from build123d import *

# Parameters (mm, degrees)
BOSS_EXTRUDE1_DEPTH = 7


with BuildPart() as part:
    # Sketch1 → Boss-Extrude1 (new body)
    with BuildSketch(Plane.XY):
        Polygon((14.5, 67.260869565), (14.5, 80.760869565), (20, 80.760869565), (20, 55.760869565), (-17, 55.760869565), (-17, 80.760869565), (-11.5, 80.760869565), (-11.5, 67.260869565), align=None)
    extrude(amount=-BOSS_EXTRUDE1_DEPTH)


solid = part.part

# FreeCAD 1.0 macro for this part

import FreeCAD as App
import Part
import Sketcher

V = App.Vector
Q = App.Units.Quantity


def add_polygon(sketch, points):
    """Adds a closed chain of lines whose ends are joined by coincident constraints."""
    first, n = sketch.GeometryCount, len(points)
    for a, b in zip(points, points[1:] + points[:1]):
        sketch.addGeometry(Part.LineSegment(App.Vector(*a, 0), App.Vector(*b, 0)), False)
    for i in range(n):
        sketch.addConstraint(Sketcher.Constraint("Coincident", first + i, 2, first + (i + 1) % n, 1))

doc = App.newDocument("Part")
params = doc.addObject("Spreadsheet::Sheet", "Params")
for row, (alias, value) in enumerate([
    ("sketch1_width", "26 mm"),
    ("sketch1_width2", "37 mm"),
    ("sketch1_height", "25 mm"),
    ("sketch1_height2", "13.5 mm"),
    ("pad1_length", "7 mm"),
], start=1):
    params.set(f"A{row}", alias)
    params.set(f"B{row}", "=" + value)
    params.setAlias(f"B{row}", alias)

body = doc.addObject("PartDesign::Body", "Body")

# Sketch on XY plane
sketch1 = body.newObject("Sketcher::SketchObject", "Sketch")
sketch1.AttachmentSupport = (doc.getObject("XY_Plane"), [""])
sketch1.MapMode = "FlatFace"
add_polygon(sketch1, [(14.5, 80.76087), (14.5, 67.26087), (-11.5, 67.26087), (-11.5, 80.76087), (-17, 80.76087), (-17, 55.76087), (20, 55.76087), (20, 80.76087)])  # lines 0-7
sketch1.addConstraint(Sketcher.Constraint("Vertical", 0))
sketch1.addConstraint(Sketcher.Constraint("Horizontal", 1))
sketch1.addConstraint(Sketcher.Constraint("Vertical", 2))
sketch1.addConstraint(Sketcher.Constraint("Horizontal", 3))
sketch1.addConstraint(Sketcher.Constraint("Vertical", 4))
sketch1.addConstraint(Sketcher.Constraint("Horizontal", 5))
sketch1.addConstraint(Sketcher.Constraint("Vertical", 6))
sketch1.addConstraint(Sketcher.Constraint("Horizontal", 7))
sketch1.addConstraint(Sketcher.Constraint("Horizontal", 3, 2, 6, 2))
sketch1.addConstraint(Sketcher.Constraint("Equal", 3, 7))
sketch1.addConstraint(Sketcher.Constraint("DistanceX", 1, 2, 1, 1, Q("26 mm")))
sketch1.addConstraint(Sketcher.Constraint("DistanceX", 5, 1, 5, 2, Q("37 mm")))
sketch1.addConstraint(Sketcher.Constraint("DistanceY", 4, 2, 4, 1, Q("25 mm")))
sketch1.addConstraint(Sketcher.Constraint("DistanceY", 0, 2, 0, 1, Q("13.5 mm")))
sketch1.addConstraint(Sketcher.Constraint("DistanceX", 3, 2, -1, 1, Q("17 mm")))
sketch1.addConstraint(Sketcher.Constraint("DistanceY", -1, 1, 0, 2, Q("67.26087 mm")))
sketch1.setExpression("Constraints[18]", "Params.sketch1_width")
sketch1.setExpression("Constraints[19]", "Params.sketch1_width2")
sketch1.setExpression("Constraints[20]", "Params.sketch1_height")
sketch1.setExpression("Constraints[21]", "Params.sketch1_height2")
pad1 = body.newObject("PartDesign::Pad", "Pad")
pad1.Profile = sketch1
pad1.setExpression("Length", "Params.pad1_length")
pad1.Reversed = True

doc.recompute()
